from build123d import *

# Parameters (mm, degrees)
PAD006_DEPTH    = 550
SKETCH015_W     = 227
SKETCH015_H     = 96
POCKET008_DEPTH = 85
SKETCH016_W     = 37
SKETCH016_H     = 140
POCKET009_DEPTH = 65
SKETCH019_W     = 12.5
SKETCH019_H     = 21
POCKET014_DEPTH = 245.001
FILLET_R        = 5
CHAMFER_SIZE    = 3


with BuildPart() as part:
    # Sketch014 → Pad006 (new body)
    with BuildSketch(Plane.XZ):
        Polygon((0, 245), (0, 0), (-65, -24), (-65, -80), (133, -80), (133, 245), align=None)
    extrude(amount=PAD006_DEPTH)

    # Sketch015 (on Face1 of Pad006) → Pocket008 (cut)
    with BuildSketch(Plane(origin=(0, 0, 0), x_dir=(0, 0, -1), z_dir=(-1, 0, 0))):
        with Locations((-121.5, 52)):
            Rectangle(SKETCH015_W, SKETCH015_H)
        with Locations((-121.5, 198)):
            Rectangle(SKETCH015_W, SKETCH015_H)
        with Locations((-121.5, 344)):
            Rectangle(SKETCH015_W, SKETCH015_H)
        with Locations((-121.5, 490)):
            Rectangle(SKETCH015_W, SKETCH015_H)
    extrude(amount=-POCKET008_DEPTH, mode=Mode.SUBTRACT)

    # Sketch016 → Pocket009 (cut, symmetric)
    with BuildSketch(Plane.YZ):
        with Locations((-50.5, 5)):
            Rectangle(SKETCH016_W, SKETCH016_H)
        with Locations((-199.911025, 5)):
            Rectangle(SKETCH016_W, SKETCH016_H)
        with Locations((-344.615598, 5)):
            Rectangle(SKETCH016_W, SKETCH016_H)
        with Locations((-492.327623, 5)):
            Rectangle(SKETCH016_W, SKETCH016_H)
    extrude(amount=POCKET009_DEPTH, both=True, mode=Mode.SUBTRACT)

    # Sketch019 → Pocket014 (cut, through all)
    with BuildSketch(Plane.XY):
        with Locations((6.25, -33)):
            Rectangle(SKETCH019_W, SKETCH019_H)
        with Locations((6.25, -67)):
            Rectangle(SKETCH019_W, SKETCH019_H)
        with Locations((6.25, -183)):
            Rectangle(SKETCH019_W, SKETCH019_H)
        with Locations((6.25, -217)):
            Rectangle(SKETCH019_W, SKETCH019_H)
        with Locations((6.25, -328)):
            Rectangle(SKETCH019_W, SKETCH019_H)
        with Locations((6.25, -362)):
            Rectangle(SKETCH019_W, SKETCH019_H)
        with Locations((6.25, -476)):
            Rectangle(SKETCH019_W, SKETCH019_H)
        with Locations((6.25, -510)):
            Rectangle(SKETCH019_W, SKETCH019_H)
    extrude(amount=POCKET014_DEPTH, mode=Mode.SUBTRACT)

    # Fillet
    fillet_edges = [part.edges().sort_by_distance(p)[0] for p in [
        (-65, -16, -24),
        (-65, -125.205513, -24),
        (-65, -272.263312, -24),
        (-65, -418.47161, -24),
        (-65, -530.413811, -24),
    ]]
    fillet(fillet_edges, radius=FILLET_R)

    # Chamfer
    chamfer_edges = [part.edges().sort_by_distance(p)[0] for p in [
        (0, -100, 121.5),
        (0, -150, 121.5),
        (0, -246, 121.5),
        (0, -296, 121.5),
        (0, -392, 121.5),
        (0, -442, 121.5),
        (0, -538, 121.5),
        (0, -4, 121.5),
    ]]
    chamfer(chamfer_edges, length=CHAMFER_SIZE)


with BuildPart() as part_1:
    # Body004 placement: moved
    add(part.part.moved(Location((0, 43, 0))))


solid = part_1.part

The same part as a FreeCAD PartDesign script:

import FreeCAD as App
import Part
import Sketcher
Q = App.Units.Quantity


def edges_at(feature, points):
    """Names of the edges that pass closest to the given points."""
    edges = feature.Shape.Edges
    near = lambda p: min(range(len(edges)), key=lambda i: edges[i].distToShape(Part.Vertex(*p))[0])
    return sorted({f"Edge{near(p) + 1}" for p in points})

doc = App.newDocument("Part")
body = doc.addObject("PartDesign::Body", "Body")

# Sketch on XZ plane
sketch1 = body.newObject("Sketcher::SketchObject", "Sketch")
sketch1.AttachmentSupport = (doc.getObject("XZ_Plane"), [""])
sketch1.MapMode = "FlatFace"
sketch1.addGeometry([
    Part.LineSegment(App.Vector(0, 245, 0), App.Vector(0, 0, 0)),  # 0
    Part.LineSegment(App.Vector(0, 0, 0), App.Vector(-65, -24, 0)),  # 1
    Part.LineSegment(App.Vector(-65, -24, 0), App.Vector(-65, -80, 0)),  # 2
    Part.LineSegment(App.Vector(-65, -80, 0), App.Vector(133, -80, 0)),  # 3
    Part.LineSegment(App.Vector(133, -80, 0), App.Vector(133, 245, 0)),  # 4
    Part.LineSegment(App.Vector(133, 245, 0), App.Vector(0, 245, 0)),  # 5
], False)
sketch1.addConstraint([
    Sketcher.Constraint("Coincident", 0, 2, 1, 1),
    Sketcher.Constraint("Coincident", 1, 2, 2, 1),
    Sketcher.Constraint("Coincident", 2, 2, 3, 1),
    Sketcher.Constraint("Coincident", 3, 2, 4, 1),
    Sketcher.Constraint("Coincident", 4, 2, 5, 1),
    Sketcher.Constraint("Coincident", 5, 2, 0, 1),
    Sketcher.Constraint("Vertical", 0),
    Sketcher.Constraint("Vertical", 2),
    Sketcher.Constraint("Horizontal", 3),
    Sketcher.Constraint("Vertical", 4),
    Sketcher.Constraint("Horizontal", 5),
    Sketcher.Constraint("Coincident", 0, 2, -1, 1),
    Sketcher.Constraint("DistanceX", 3, 1, 3, 2, Q("198 mm")),
    Sketcher.Constraint("DistanceX", 5, 2, 5, 1, Q("133 mm")),
    Sketcher.Constraint("DistanceY", 0, 2, 0, 1, Q("245 mm")),
    Sketcher.Constraint("DistanceY", 2, 2, 2, 1, Q("56 mm")),
    Sketcher.Constraint("DistanceY", 4, 1, 4, 2, Q("325 mm")),
])
pad1 = body.newObject("PartDesign::Pad", "Pad")
pad1.Profile = sketch1
pad1.Length = 550

# Sketch on YZ plane
sketch2 = body.newObject("Sketcher::SketchObject", "Sketch001")
sketch2.AttachmentSupport = (doc.getObject("YZ_Plane"), [""])
sketch2.MapMode = "FlatFace"
sketch2.addGeometry([
    Part.LineSegment(App.Vector(-100, 235, 0), App.Vector(-4, 235, 0)),  # 0
    Part.LineSegment(App.Vector(-4, 235, 0), App.Vector(-4, 8, 0)),  # 1
    Part.LineSegment(App.Vector(-4, 8, 0), App.Vector(-100, 8, 0)),  # 2
    Part.LineSegment(App.Vector(-100, 8, 0), App.Vector(-100, 235, 0)),  # 3
    Part.LineSegment(App.Vector(-246, 235, 0), App.Vector(-150, 235, 0)),  # 4
    Part.LineSegment(App.Vector(-150, 235, 0), App.Vector(-150, 8, 0)),  # 5
    Part.LineSegment(App.Vector(-150, 8, 0), App.Vector(-246, 8, 0)),  # 6
    Part.LineSegment(App.Vector(-246, 8, 0), App.Vector(-246, 235, 0)),  # 7
    Part.LineSegment(App.Vector(-392, 235, 0), App.Vector(-296, 235, 0)),  # 8
    Part.LineSegment(App.Vector(-296, 235, 0), App.Vector(-296, 8, 0)),  # 9
    Part.LineSegment(App.Vector(-296, 8, 0), App.Vector(-392, 8, 0)),  # 10
    Part.LineSegment(App.Vector(-392, 8, 0), App.Vector(-392, 235, 0)),  # 11
    Part.LineSegment(App.Vector(-538, 235, 0), App.Vector(-442, 235, 0)),  # 12
    Part.LineSegment(App.Vector(-442, 235, 0), App.Vector(-442, 8, 0)),  # 13
    Part.LineSegment(App.Vector(-442, 8, 0), App.Vector(-538, 8, 0)),  # 14
    Part.LineSegment(App.Vector(-538, 8, 0), App.Vector(-538, 235, 0)),  # 15
], False)
sketch2.addConstraint([
    Sketcher.Constraint("Coincident", 0, 2, 1, 1),
    Sketcher.Constraint("Coincident", 1, 2, 2, 1),
    Sketcher.Constraint("Coincident", 2, 2, 3, 1),
    Sketcher.Constraint("Coincident", 3, 2, 0, 1),
    Sketcher.Constraint("Coincident", 4, 2, 5, 1),
    Sketcher.Constraint("Coincident", 5, 2, 6, 1),
    Sketcher.Constraint("Coincident", 6, 2, 7, 1),
    Sketcher.Constraint("Coincident", 7, 2, 4, 1),
    Sketcher.Constraint("Coincident", 8, 2, 9, 1),
    Sketcher.Constraint("Coincident", 9, 2, 10, 1),
    Sketcher.Constraint("Coincident", 10, 2, 11, 1),
    Sketcher.Constraint("Coincident", 11, 2, 8, 1),
    Sketcher.Constraint("Coincident", 12, 2, 13, 1),
    Sketcher.Constraint("Coincident", 13, 2, 14, 1),
    Sketcher.Constraint("Coincident", 14, 2, 15, 1),
    Sketcher.Constraint("Coincident", 15, 2, 12, 1),
    Sketcher.Constraint("Horizontal", 0),
    Sketcher.Constraint("Vertical", 1),
    Sketcher.Constraint("Horizontal", 2),
    Sketcher.Constraint("Vertical", 3),
    Sketcher.Constraint("Horizontal", 4),
    Sketcher.Constraint("Vertical", 5),
    Sketcher.Constraint("Horizontal", 6),
    Sketcher.Constraint("Vertical", 7),
    Sketcher.Constraint("Horizontal", 8),
    Sketcher.Constraint("Vertical", 9),
    Sketcher.Constraint("Horizontal", 10),
    Sketcher.Constraint("Vertical", 11),
    Sketcher.Constraint("Horizontal", 12),
    Sketcher.Constraint("Vertical", 13),
    Sketcher.Constraint("Horizontal", 14),
    Sketcher.Constraint("Vertical", 15),
    Sketcher.Constraint("Horizontal", 3, 2, 4, 2),
    Sketcher.Constraint("Horizontal", 2, 2, 5, 2),
    Sketcher.Constraint("Horizontal", 7, 2, 8, 2),
    Sketcher.Constraint("Horizontal", 6, 2, 9, 2),
    Sketcher.Constraint("Horizontal", 11, 2, 12, 2),
    Sketcher.Constraint("Horizontal", 10, 2, 13, 2),
    Sketcher.Constraint("Equal", 2, 4),
    Sketcher.Constraint("Equal", 6, 8),
    Sketcher.Constraint("Equal", 10, 12),
    Sketcher.Constraint("DistanceX", 0, 1, 0, 2, Q("96 mm")),
    Sketcher.Constraint("DistanceY", 1, 2, 1, 1, Q("227 mm")),
    Sketcher.Constraint("DistanceX", 0, 2, -1, 1, Q("4 mm")),
    Sketcher.Constraint("DistanceY", -1, 1, 0, 2, Q("235 mm")),
    Sketcher.Constraint("DistanceX", 4, 2, -1, 1, Q("150 mm")),
    Sketcher.Constraint("DistanceX", 8, 2, -1, 1, Q("296 mm")),
    Sketcher.Constraint("DistanceX", 12, 2, -1, 1, Q("442 mm")),
])
pocket1 = body.newObject("PartDesign::Pocket", "Pocket")
pocket1.Profile = sketch2
pocket1.Length = 85
pocket1.Reversed = True

# Sketch on YZ plane
sketch3 = body.newObject("Sketcher::SketchObject", "Sketch002")
sketch3.AttachmentSupport = (doc.getObject("YZ_Plane"), [""])
sketch3.MapMode = "FlatFace"
sketch3.addGeometry([
    Part.LineSegment(App.Vector(-69, 75, 0), App.Vector(-69, -65, 0)),  # 0
    Part.LineSegment(App.Vector(-69, -65, 0), App.Vector(-32, -65, 0)),  # 1
    Part.LineSegment(App.Vector(-32, -65, 0), App.Vector(-32, 75, 0)),  # 2
    Part.LineSegment(App.Vector(-32, 75, 0), App.Vector(-69, 75, 0)),  # 3
    Part.LineSegment(App.Vector(-218, 75, 0), App.Vector(-218, -65, 0)),  # 4
    Part.LineSegment(App.Vector(-218, -65, 0), App.Vector(-181, -65, 0)),  # 5
    Part.LineSegment(App.Vector(-181, -65, 0), App.Vector(-181, 75, 0)),  # 6
    Part.LineSegment(App.Vector(-181, 75, 0), App.Vector(-218, 75, 0)),  # 7
    Part.LineSegment(App.Vector(-363, 75, 0), App.Vector(-363, -65, 0)),  # 8
    Part.LineSegment(App.Vector(-363, -65, 0), App.Vector(-326, -65, 0)),  # 9
    Part.LineSegment(App.Vector(-326, -65, 0), App.Vector(-326, 75, 0)),  # 10
    Part.LineSegment(App.Vector(-326, 75, 0), App.Vector(-363, 75, 0)),  # 11
    Part.LineSegment(App.Vector(-511, 75, 0), App.Vector(-511, -65, 0)),  # 12
    Part.LineSegment(App.Vector(-511, -65, 0), App.Vector(-474, -65, 0)),  # 13
    Part.LineSegment(App.Vector(-474, -65, 0), App.Vector(-474, 75, 0)),  # 14
    Part.LineSegment(App.Vector(-474, 75, 0), App.Vector(-511, 75, 0)),  # 15
], False)
sketch3.addConstraint([
    Sketcher.Constraint("Coincident", 0, 2, 1, 1),
    Sketcher.Constraint("Coincident", 1, 2, 2, 1),
    Sketcher.Constraint("Coincident", 2, 2, 3, 1),
    Sketcher.Constraint("Coincident", 3, 2, 0, 1),
    Sketcher.Constraint("Coincident", 4, 2, 5, 1),
    Sketcher.Constraint("Coincident", 5, 2, 6, 1),
    Sketcher.Constraint("Coincident", 6, 2, 7, 1),
    Sketcher.Constraint("Coincident", 7, 2, 4, 1),
    Sketcher.Constraint("Coincident", 8, 2, 9, 1),
    Sketcher.Constraint("Coincident", 9, 2, 10, 1),
    Sketcher.Constraint("Coincident", 10, 2, 11, 1),
    Sketcher.Constraint("Coincident", 11, 2, 8, 1),
    Sketcher.Constraint("Coincident", 12, 2, 13, 1),
    Sketcher.Constraint("Coincident", 13, 2, 14, 1),
    Sketcher.Constraint("Coincident", 14, 2, 15, 1),
    Sketcher.Constraint("Coincident", 15, 2, 12, 1),
    Sketcher.Constraint("Vertical", 0),
    Sketcher.Constraint("Horizontal", 1),
    Sketcher.Constraint("Vertical", 2),
    Sketcher.Constraint("Horizontal", 3),
    Sketcher.Constraint("Vertical", 4),
    Sketcher.Constraint("Horizontal", 5),
    Sketcher.Constraint("Vertical", 6),
    Sketcher.Constraint("Horizontal", 7),
    Sketcher.Constraint("Vertical", 8),
    Sketcher.Constraint("Horizontal", 9),
    Sketcher.Constraint("Vertical", 10),
    Sketcher.Constraint("Horizontal", 11),
    Sketcher.Constraint("Vertical", 12),
    Sketcher.Constraint("Horizontal", 13),
    Sketcher.Constraint("Vertical", 14),
    Sketcher.Constraint("Horizontal", 15),
    Sketcher.Constraint("Horizontal", 1, 2, 4, 2),
    Sketcher.Constraint("Horizontal", 3, 2, 6, 2),
    Sketcher.Constraint("Horizontal", 5, 2, 8, 2),
    Sketcher.Constraint("Horizontal", 7, 2, 10, 2),
    Sketcher.Constraint("Horizontal", 9, 2, 12, 2),
    Sketcher.Constraint("Horizontal", 11, 2, 14, 2),
    Sketcher.Constraint("Equal", 3, 5),
    Sketcher.Constraint("Equal", 7, 9),
    Sketcher.Constraint("Equal", 11, 13),
    Sketcher.Constraint("DistanceX", 1, 1, 1, 2, Q("37 mm")),
    Sketcher.Constraint("DistanceY", 0, 2, 0, 1, Q("140 mm")),
    Sketcher.Constraint("DistanceX", 0, 2, -1, 1, Q("69 mm")),
    Sketcher.Constraint("DistanceY", 0, 2, -1, 1, Q("65 mm")),
    Sketcher.Constraint("DistanceX", 8, 2, -1, 1, Q("363.115598 mm")),
    Sketcher.Constraint("DistanceX", 12, 2, 4, 2, Q("292.416598 mm")),
    Sketcher.Constraint("DistanceX", 4, 2, -1, 1, Q("218.411025 mm")),
])
pocket2 = body.newObject("PartDesign::Pocket", "Pocket001")
pocket2.Profile = sketch3
pocket2.Length = 130
pocket2.Midplane = True

# Sketch on XY plane
sketch4 = body.newObject("Sketcher::SketchObject", "Sketch003")
sketch4.AttachmentSupport = (doc.getObject("XY_Plane"), [""])
sketch4.MapMode = "FlatFace"
sketch4.addGeometry([
    Part.LineSegment(App.Vector(0, -22, 0), App.Vector(0, -44, 0)),  # 0
    Part.LineSegment(App.Vector(0, -44, 0), App.Vector(12, -44, 0)),  # 1
    Part.LineSegment(App.Vector(12, -44, 0), App.Vector(12, -22, 0)),  # 2
    Part.LineSegment(App.Vector(12, -22, 0), App.Vector(0, -22, 0)),  # 3
    Part.LineSegment(App.Vector(0, -56, 0), App.Vector(0, -78, 0)),  # 4
    Part.LineSegment(App.Vector(0, -78, 0), App.Vector(12, -78, 0)),  # 5
    Part.LineSegment(App.Vector(12, -78, 0), App.Vector(12, -56, 0)),  # 6
    Part.LineSegment(App.Vector(12, -56, 0), App.Vector(0, -56, 0)),  # 7
    Part.LineSegment(App.Vector(0, -172, 0), App.Vector(0, -194, 0)),  # 8
    Part.LineSegment(App.Vector(0, -194, 0), App.Vector(12, -194, 0)),  # 9
    Part.LineSegment(App.Vector(12, -194, 0), App.Vector(12, -172, 0)),  # 10
    Part.LineSegment(App.Vector(12, -172, 0), App.Vector(0, -172, 0)),  # 11
    Part.LineSegment(App.Vector(0, -206, 0), App.Vector(0, -228, 0)),  # 12
    Part.LineSegment(App.Vector(0, -228, 0), App.Vector(12, -228, 0)),  # 13
    Part.LineSegment(App.Vector(12, -228, 0), App.Vector(12, -206, 0)),  # 14
    Part.LineSegment(App.Vector(12, -206, 0), App.Vector(0, -206, 0)),  # 15
    Part.LineSegment(App.Vector(0, -318, 0), App.Vector(0, -338, 0)),  # 16
    Part.LineSegment(App.Vector(0, -338, 0), App.Vector(12, -338, 0)),  # 17
    Part.LineSegment(App.Vector(12, -338, 0), App.Vector(12, -318, 0)),  # 18
    Part.LineSegment(App.Vector(12, -318, 0), App.Vector(0, -318, 0)),  # 19
    Part.LineSegment(App.Vector(0, -352, 0), App.Vector(0, -372, 0)),  # 20
    Part.LineSegment(App.Vector(0, -372, 0), App.Vector(12, -372, 0)),  # 21
    Part.LineSegment(App.Vector(12, -372, 0), App.Vector(12, -352, 0)),  # 22
    Part.LineSegment(App.Vector(12, -352, 0), App.Vector(0, -352, 0)),  # 23
    Part.LineSegment(App.Vector(0, -466, 0), App.Vector(0, -486, 0)),  # 24
    Part.LineSegment(App.Vector(0, -486, 0), App.Vector(12, -486, 0)),  # 25
    Part.LineSegment(App.Vector(12, -486, 0), App.Vector(12, -466, 0)),  # 26
    Part.LineSegment(App.Vector(12, -466, 0), App.Vector(0, -466, 0)),  # 27
    Part.LineSegment(App.Vector(0, -500, 0), App.Vector(0, -520, 0)),  # 28
    Part.LineSegment(App.Vector(0, -520, 0), App.Vector(12, -520, 0)),  # 29
    Part.LineSegment(App.Vector(12, -520, 0), App.Vector(12, -500, 0)),  # 30
    Part.LineSegment(App.Vector(12, -500, 0), App.Vector(0, -500, 0)),  # 31
], False)
sketch4.addConstraint([
    Sketcher.Constraint("Coincident", 0, 2, 1, 1),
    Sketcher.Constraint("Coincident", 1, 2, 2, 1),
    Sketcher.Constraint("Coincident", 2, 2, 3, 1),
    Sketcher.Constraint("Coincident", 3, 2, 0, 1),
    Sketcher.Constraint("Coincident", 4, 2, 5, 1),
    Sketcher.Constraint("Coincident", 5, 2, 6, 1),
    Sketcher.Constraint("Coincident", 6, 2, 7, 1),
    Sketcher.Constraint("Coincident", 7, 2, 4, 1),
    Sketcher.Constraint("Coincident", 8, 2, 9, 1),
    Sketcher.Constraint("Coincident", 9, 2, 10, 1),
    Sketcher.Constraint("Coincident", 10, 2, 11, 1),
    Sketcher.Constraint("Coincident", 11, 2, 8, 1),
    Sketcher.Constraint("Coincident", 12, 2, 13, 1),
    Sketcher.Constraint("Coincident", 13, 2, 14, 1),
    Sketcher.Constraint("Coincident", 14, 2, 15, 1),
    Sketcher.Constraint("Coincident", 15, 2, 12, 1),
    Sketcher.Constraint("Coincident", 16, 2, 17, 1),
    Sketcher.Constraint("Coincident", 17, 2, 18, 1),
    Sketcher.Constraint("Coincident", 18, 2, 19, 1),
    Sketcher.Constraint("Coincident", 19, 2, 16, 1),
    Sketcher.Constraint("Coincident", 20, 2, 21, 1),
    Sketcher.Constraint("Coincident", 21, 2, 22, 1),
    Sketcher.Constraint("Coincident", 22, 2, 23, 1),
    Sketcher.Constraint("Coincident", 23, 2, 20, 1),
    Sketcher.Constraint("Coincident", 24, 2, 25, 1),
    Sketcher.Constraint("Coincident", 25, 2, 26, 1),
    Sketcher.Constraint("Coincident", 26, 2, 27, 1),
    Sketcher.Constraint("Coincident", 27, 2, 24, 1),
    Sketcher.Constraint("Coincident", 28, 2, 29, 1),
    Sketcher.Constraint("Coincident", 29, 2, 30, 1),
    Sketcher.Constraint("Coincident", 30, 2, 31, 1),
    Sketcher.Constraint("Coincident", 31, 2, 28, 1),
    Sketcher.Constraint("Vertical", 0),
    Sketcher.Constraint("Horizontal", 1),
    Sketcher.Constraint("Vertical", 2),
    Sketcher.Constraint("Horizontal", 3),
    Sketcher.Constraint("Vertical", 4),
    Sketcher.Constraint("Horizontal", 5),
    Sketcher.Constraint("Vertical", 6),
    Sketcher.Constraint("Horizontal", 7),
    Sketcher.Constraint("Vertical", 8),
    Sketcher.Constraint("Horizontal", 9),
    Sketcher.Constraint("Vertical", 10),
    Sketcher.Constraint("Horizontal", 11),
    Sketcher.Constraint("Vertical", 12),
    Sketcher.Constraint("Horizontal", 13),
    Sketcher.Constraint("Vertical", 14),
    Sketcher.Constraint("Horizontal", 15),
    Sketcher.Constraint("Vertical", 16),
    Sketcher.Constraint("Horizontal", 17),
    Sketcher.Constraint("Vertical", 18),
    Sketcher.Constraint("Horizontal", 19),
    Sketcher.Constraint("Vertical", 20),
    Sketcher.Constraint("Horizontal", 21),
    Sketcher.Constraint("Vertical", 22),
    Sketcher.Constraint("Horizontal", 23),
    Sketcher.Constraint("Vertical", 24),
    Sketcher.Constraint("Horizontal", 25),
    Sketcher.Constraint("Vertical", 26),
    Sketcher.Constraint("Horizontal", 27),
    Sketcher.Constraint("Vertical", 28),
    Sketcher.Constraint("Horizontal", 29),
    Sketcher.Constraint("Vertical", 30),
    Sketcher.Constraint("Horizontal", 31),
    Sketcher.Constraint("PointOnObject", 0, 2, -2),
    Sketcher.Constraint("PointOnObject", 4, 2, -2),
    Sketcher.Constraint("PointOnObject", 8, 2, -2),
    Sketcher.Constraint("PointOnObject", 12, 2, -2),
    Sketcher.Constraint("PointOnObject", 16, 2, -2),
    Sketcher.Constraint("PointOnObject", 20, 2, -2),
    Sketcher.Constraint("PointOnObject", 24, 2, -2),
    Sketcher.Constraint("PointOnObject", 28, 2, -2),
    Sketcher.Constraint("Vertical", 2, 2, 5, 2),
    Sketcher.Constraint("Vertical", 6, 2, 9, 2),
    Sketcher.Constraint("Vertical", 10, 2, 13, 2),
    Sketcher.Constraint("Vertical", 14, 2, 17, 2),
    Sketcher.Constraint("Vertical", 18, 2, 21, 2),
    Sketcher.Constraint("Vertical", 22, 2, 25, 2),
    Sketcher.Constraint("Vertical", 26, 2, 29, 2),
    Sketcher.Constraint("Equal", 2, 4),
    Sketcher.Constraint("Equal", 6, 8),
    Sketcher.Constraint("Equal", 10, 12),
    Sketcher.Constraint("Equal", 14, 16),
    Sketcher.Constraint("Equal", 18, 20),
    Sketcher.Constraint("Equal", 22, 24),
    Sketcher.Constraint("Equal", 26, 28),
    Sketcher.Constraint("DistanceY", 0, 2, 0, 1, Q("21 mm")),
    Sketcher.Constraint("DistanceX", 1, 1, 1, 2, Q("12.5 mm")),
    Sketcher.Constraint("DistanceY", 4, 2, 0, 2, Q("34 mm")),
    Sketcher.Constraint("DistanceY", 8, 2, 4, 2, Q("116 mm")),
    Sketcher.Constraint("DistanceY", 12, 2, 8, 2, Q("34 mm")),
    Sketcher.Constraint("DistanceY", 16, 2, 12, 2, Q("111 mm")),
    Sketcher.Constraint("DistanceY", 20, 2, 16, 2, Q("34 mm")),
    Sketcher.Constraint("DistanceY", 24, 2, 20, 2, Q("114 mm")),
    Sketcher.Constraint("DistanceY", 28, 2, 24, 2, Q("34 mm")),
    Sketcher.Constraint("DistanceY", 0, 2, -1, 1, Q("43.5 mm")),
])
pocket3 = body.newObject("PartDesign::Pocket", "Pocket002")
pocket3.Profile = sketch4
pocket3.Type = "ThroughAll"
pocket3.Reversed = True
doc.recompute()

fillet = body.newObject("PartDesign::Fillet", "Fillet")
fillet.Base = (pocket3, edges_at(pocket3, [
    (-65, -16, -24),
    (-65, -125.206, -24),
    (-65, -272.263, -24),
    (-65, -418.472, -24),
    (-65, -530.414, -24),
]))
fillet.Radius = 5
doc.recompute()

chamfer = body.newObject("PartDesign::Chamfer", "Chamfer")
chamfer.Base = (fillet, edges_at(fillet, [
    (0, -100, 121.5),
    (0, -150, 121.5),
    (0, -246, 121.5),
    (0, -296, 121.5),
    (0, -392, 121.5),
    (0, -442, 121.5),
    (0, -538, 121.5),
    (0, -4, 121.5),
]))
chamfer.Size = 3
body2 = doc.addObject("PartDesign::Body", "Body001")
doc.recompute()

body.Placement = App.Placement(App.Vector(0, 43, 0), App.Rotation(App.Vector(0, 0, 1), 0))
boolean = body2.newObject("PartDesign::Boolean", "Boolean")
boolean.Type = "Fuse"
boolean.addObjects([body])

doc.recompute()
